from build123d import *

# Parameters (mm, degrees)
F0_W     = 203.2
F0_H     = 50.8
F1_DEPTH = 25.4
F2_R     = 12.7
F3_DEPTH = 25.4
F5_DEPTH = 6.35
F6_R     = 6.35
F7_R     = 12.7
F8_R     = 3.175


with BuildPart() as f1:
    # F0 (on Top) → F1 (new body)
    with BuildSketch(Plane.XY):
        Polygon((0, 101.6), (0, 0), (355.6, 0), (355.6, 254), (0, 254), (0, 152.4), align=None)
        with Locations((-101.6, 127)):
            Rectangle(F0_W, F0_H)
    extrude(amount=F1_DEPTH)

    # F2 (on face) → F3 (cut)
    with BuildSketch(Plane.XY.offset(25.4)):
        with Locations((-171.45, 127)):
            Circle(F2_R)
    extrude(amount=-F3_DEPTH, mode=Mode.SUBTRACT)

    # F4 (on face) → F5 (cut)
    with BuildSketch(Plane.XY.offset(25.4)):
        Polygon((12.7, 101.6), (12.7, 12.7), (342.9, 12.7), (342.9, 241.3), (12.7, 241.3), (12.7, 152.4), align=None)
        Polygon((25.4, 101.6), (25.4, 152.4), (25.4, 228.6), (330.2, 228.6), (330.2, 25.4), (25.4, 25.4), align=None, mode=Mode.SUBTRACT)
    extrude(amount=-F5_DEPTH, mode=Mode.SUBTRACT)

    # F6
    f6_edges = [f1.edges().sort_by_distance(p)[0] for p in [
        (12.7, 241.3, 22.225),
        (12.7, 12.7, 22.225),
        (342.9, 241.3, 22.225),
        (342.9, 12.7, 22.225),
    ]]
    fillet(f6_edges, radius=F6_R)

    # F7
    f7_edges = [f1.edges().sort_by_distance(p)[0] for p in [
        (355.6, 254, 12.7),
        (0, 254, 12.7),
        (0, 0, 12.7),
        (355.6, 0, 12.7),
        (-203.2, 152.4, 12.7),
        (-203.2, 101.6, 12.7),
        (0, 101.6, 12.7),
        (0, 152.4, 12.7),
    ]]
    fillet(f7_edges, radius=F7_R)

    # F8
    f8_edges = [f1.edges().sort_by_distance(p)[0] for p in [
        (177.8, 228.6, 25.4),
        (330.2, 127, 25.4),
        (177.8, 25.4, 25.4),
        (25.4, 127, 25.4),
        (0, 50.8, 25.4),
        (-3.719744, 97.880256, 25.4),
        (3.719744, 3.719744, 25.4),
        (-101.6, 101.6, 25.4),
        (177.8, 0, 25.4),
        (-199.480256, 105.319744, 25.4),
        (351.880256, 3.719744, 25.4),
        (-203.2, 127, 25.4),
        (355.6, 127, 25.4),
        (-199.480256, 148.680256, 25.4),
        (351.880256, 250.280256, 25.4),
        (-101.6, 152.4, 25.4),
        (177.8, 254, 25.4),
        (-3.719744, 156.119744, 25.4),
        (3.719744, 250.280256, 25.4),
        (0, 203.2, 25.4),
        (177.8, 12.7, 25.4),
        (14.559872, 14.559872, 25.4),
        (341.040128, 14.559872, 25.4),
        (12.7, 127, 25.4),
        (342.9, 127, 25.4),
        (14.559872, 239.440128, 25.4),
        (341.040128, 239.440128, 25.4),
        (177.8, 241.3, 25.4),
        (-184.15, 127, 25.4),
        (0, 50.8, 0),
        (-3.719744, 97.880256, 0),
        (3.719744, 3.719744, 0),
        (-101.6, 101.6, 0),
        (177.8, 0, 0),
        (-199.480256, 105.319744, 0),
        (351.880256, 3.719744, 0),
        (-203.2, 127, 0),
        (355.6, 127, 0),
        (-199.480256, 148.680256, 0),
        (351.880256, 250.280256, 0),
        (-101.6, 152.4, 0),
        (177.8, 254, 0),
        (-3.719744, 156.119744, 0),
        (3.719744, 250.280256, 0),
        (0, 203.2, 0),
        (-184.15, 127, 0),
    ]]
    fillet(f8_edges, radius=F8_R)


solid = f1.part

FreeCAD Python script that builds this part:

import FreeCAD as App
import Part
import Sketcher
Q = App.Units.Quantity


def edges_at(feature, points):
    """Names of the edges that pass closest to the given points."""
    edges = feature.Shape.Edges
    near = lambda p: min(range(len(edges)), key=lambda i: edges[i].distToShape(Part.Vertex(*p))[0])
    return sorted({f"Edge{near(p) + 1}" for p in points})


def add_polygon(sketch, points):
    """Adds a closed chain of lines whose ends are joined by coincident constraints."""
    first, n = sketch.GeometryCount, len(points)
    for a, b in zip(points, points[1:] + points[:1]):
        sketch.addGeometry(Part.LineSegment(App.Vector(*a, 0), App.Vector(*b, 0)), False)
    for i in range(n):
        sketch.addConstraint(Sketcher.Constraint("Coincident", first + i, 2, first + (i + 1) % n, 1))

doc = App.newDocument("Part")
body = doc.addObject("PartDesign::Body", "Body")

# Sketch on XY plane
sketch1 = body.newObject("Sketcher::SketchObject", "Sketch")
sketch1.AttachmentSupport = (doc.getObject("XY_Plane"), [""])
sketch1.MapMode = "FlatFace"
add_polygon(sketch1, [(0, 0), (355.6, 0), (355.6, 254), (0, 254), (0, 152.4), (-203.2, 152.4), (-203.2, 101.6), (0, 101.6)])  # lines 0-7
sketch1.addConstraint([
    Sketcher.Constraint("Horizontal", 0),
    Sketcher.Constraint("Vertical", 1),
    Sketcher.Constraint("Horizontal", 2),
    Sketcher.Constraint("Vertical", 3),
    Sketcher.Constraint("Horizontal", 4),
    Sketcher.Constraint("Vertical", 5),
    Sketcher.Constraint("Horizontal", 6),
    Sketcher.Constraint("Vertical", 7),
    Sketcher.Constraint("Coincident", 7, 2, -1, 1),
    Sketcher.Constraint("PointOnObject", 2, 2, -2),
    Sketcher.Constraint("Equal", 3, 7),
    Sketcher.Constraint("DistanceX", 0, 1, 0, 2, Q("14 in")),
    Sketcher.Constraint("DistanceX", 4, 2, 4, 1, Q("8 in")),
    Sketcher.Constraint("DistanceY", 1, 1, 1, 2, Q("10 in")),
    Sketcher.Constraint("DistanceY", 3, 2, 3, 1, Q("4 in")),
])
pad1 = body.newObject("PartDesign::Pad", "Pad")
pad1.Profile = sketch1
pad1.Length = Q("1 in")

# Sketch on XY plane
sketch2 = body.newObject("Sketcher::SketchObject", "Sketch001")
sketch2.AttachmentSupport = (doc.getObject("XY_Plane"), [""])
sketch2.MapMode = "FlatFace"
sketch2.AttachmentOffset = App.Placement(App.Vector(0, 0, 1 * 25.4), App.Rotation())
sketch2.addGeometry(Part.Circle(App.Vector(-171.45, 127, 0), App.Vector(0, 0, 1), 12.7), False)
sketch2.addConstraint([
    Sketcher.Constraint("Diameter", 0, Q("1 in")),
    Sketcher.Constraint("DistanceY", -1, 1, 0, 3, Q("5 in")),
    Sketcher.Constraint("DistanceX", 0, 3, -1, 1, Q("6.75 in")),
])
pocket1 = body.newObject("PartDesign::Pocket", "Pocket")
pocket1.Profile = sketch2
pocket1.Length = Q("1 in")

# Sketch on XY plane
sketch3 = body.newObject("Sketcher::SketchObject", "Sketch002")
sketch3.AttachmentSupport = (doc.getObject("XY_Plane"), [""])
sketch3.MapMode = "FlatFace"
sketch3.AttachmentOffset = App.Placement(App.Vector(0, 0, 1 * 25.4), App.Rotation())
add_polygon(sketch3, [(12.7, 12.7), (342.9, 12.7), (342.9, 241.3), (12.7, 241.3)])  # lines 0-3
add_polygon(sketch3, [(25.4, 25.4), (25.4, 228.6), (330.2, 228.6), (330.2, 25.4)])  # lines 4-7
sketch3.addConstraint([
    Sketcher.Constraint("Horizontal", 0),
    Sketcher.Constraint("Vertical", 1),
    Sketcher.Constraint("Horizontal", 2),
    Sketcher.Constraint("Vertical", 3),
    Sketcher.Constraint("Vertical", 4),
    Sketcher.Constraint("Horizontal", 5),
    Sketcher.Constraint("Vertical", 6),
    Sketcher.Constraint("Horizontal", 7),
    Sketcher.Constraint("DistanceX", 0, 1, 0, 2, Q("13 in")),
    Sketcher.Constraint("DistanceX", 5, 1, 5, 2, Q("12 in")),
    Sketcher.Constraint("DistanceY", 1, 1, 1, 2, Q("9 in")),
    Sketcher.Constraint("DistanceY", 4, 1, 4, 2, Q("8 in")),
    Sketcher.Constraint("DistanceX", -1, 1, 4, 2, Q("1 in")),
    Sketcher.Constraint("DistanceY", -1, 1, 4, 2, Q("9 in")),
    Sketcher.Constraint("DistanceX", -1, 1, 0, 2, Q("13.5 in")),
    Sketcher.Constraint("DistanceY", -1, 1, 0, 2, Q("0.5 in")),
])
pocket2 = body.newObject("PartDesign::Pocket", "Pocket001")
pocket2.Profile = sketch3
pocket2.Length = Q("0.25 in")
doc.recompute()

fillet = body.newObject("PartDesign::Fillet", "Fillet")
fillet.Base = (pocket2, edges_at(pocket2, [
    (12.7, 241.3, 22.225),
    (12.7, 12.7, 22.225),
    (342.9, 241.3, 22.225),
    (342.9, 12.7, 22.225),
]))
fillet.Radius = Q("0.25 in")
doc.recompute()

fillet2 = body.newObject("PartDesign::Fillet", "Fillet001")
fillet2.Base = (fillet, edges_at(fillet, [
    (355.6, 254, 12.7),
    (0, 254, 12.7),
    (0, 0, 12.7),
    (355.6, 0, 12.7),
    (-203.2, 152.4, 12.7),
    (-203.2, 101.6, 12.7),
    (0, 101.6, 12.7),
    (0, 152.4, 12.7),
]))
fillet2.Radius = Q("0.5 in")
doc.recompute()

fillet3 = body.newObject("PartDesign::Fillet", "Fillet002")
fillet3.Base = (fillet2, edges_at(fillet2, [
    (177.8, 228.6, 25.4),
    (330.2, 127, 25.4),
    (177.8, 25.4, 25.4),
    (25.4, 127, 25.4),
    (0, 50.8, 25.4),
    (-3.72, 97.88, 25.4),
    (3.72, 3.72, 25.4),
    (-101.6, 101.6, 25.4),
    (177.8, 0, 25.4),
    (-199.48, 105.32, 25.4),
    (351.88, 3.72, 25.4),
    (-203.2, 127, 25.4),
    (355.6, 127, 25.4),
    (-199.48, 148.68, 25.4),
    (351.88, 250.28, 25.4),
    (-101.6, 152.4, 25.4),
    (177.8, 254, 25.4),
    (-3.72, 156.12, 25.4),
    (3.72, 250.28, 25.4),
    (0, 203.2, 25.4),
    (177.8, 12.7, 25.4),
    (14.56, 14.56, 25.4),
    (341.04, 14.56, 25.4),
    (12.7, 127, 25.4),
    (342.9, 127, 25.4),
    (14.56, 239.44, 25.4),
    (341.04, 239.44, 25.4),
    (177.8, 241.3, 25.4),
    (-184.15, 127, 25.4),
    (0, 50.8, 0),
    (-3.72, 97.88, 0),
    (3.72, 3.72, 0),
    (-101.6, 101.6, 0),
    (177.8, 0, 0),
    (-199.48, 105.32, 0),
    (351.88, 3.72, 0),
    (-203.2, 127, 0),
    (355.6, 127, 0),
    (-199.48, 148.68, 0),
    (351.88, 250.28, 0),
    (-101.6, 152.4, 0),
    (177.8, 254, 0),
    (-3.72, 156.12, 0),
    (3.72, 250.28, 0),
    (0, 203.2, 0),
    (-184.15, 127, 0),
]))
fillet3.Radius = Q("0.125 in")

doc.recompute()
